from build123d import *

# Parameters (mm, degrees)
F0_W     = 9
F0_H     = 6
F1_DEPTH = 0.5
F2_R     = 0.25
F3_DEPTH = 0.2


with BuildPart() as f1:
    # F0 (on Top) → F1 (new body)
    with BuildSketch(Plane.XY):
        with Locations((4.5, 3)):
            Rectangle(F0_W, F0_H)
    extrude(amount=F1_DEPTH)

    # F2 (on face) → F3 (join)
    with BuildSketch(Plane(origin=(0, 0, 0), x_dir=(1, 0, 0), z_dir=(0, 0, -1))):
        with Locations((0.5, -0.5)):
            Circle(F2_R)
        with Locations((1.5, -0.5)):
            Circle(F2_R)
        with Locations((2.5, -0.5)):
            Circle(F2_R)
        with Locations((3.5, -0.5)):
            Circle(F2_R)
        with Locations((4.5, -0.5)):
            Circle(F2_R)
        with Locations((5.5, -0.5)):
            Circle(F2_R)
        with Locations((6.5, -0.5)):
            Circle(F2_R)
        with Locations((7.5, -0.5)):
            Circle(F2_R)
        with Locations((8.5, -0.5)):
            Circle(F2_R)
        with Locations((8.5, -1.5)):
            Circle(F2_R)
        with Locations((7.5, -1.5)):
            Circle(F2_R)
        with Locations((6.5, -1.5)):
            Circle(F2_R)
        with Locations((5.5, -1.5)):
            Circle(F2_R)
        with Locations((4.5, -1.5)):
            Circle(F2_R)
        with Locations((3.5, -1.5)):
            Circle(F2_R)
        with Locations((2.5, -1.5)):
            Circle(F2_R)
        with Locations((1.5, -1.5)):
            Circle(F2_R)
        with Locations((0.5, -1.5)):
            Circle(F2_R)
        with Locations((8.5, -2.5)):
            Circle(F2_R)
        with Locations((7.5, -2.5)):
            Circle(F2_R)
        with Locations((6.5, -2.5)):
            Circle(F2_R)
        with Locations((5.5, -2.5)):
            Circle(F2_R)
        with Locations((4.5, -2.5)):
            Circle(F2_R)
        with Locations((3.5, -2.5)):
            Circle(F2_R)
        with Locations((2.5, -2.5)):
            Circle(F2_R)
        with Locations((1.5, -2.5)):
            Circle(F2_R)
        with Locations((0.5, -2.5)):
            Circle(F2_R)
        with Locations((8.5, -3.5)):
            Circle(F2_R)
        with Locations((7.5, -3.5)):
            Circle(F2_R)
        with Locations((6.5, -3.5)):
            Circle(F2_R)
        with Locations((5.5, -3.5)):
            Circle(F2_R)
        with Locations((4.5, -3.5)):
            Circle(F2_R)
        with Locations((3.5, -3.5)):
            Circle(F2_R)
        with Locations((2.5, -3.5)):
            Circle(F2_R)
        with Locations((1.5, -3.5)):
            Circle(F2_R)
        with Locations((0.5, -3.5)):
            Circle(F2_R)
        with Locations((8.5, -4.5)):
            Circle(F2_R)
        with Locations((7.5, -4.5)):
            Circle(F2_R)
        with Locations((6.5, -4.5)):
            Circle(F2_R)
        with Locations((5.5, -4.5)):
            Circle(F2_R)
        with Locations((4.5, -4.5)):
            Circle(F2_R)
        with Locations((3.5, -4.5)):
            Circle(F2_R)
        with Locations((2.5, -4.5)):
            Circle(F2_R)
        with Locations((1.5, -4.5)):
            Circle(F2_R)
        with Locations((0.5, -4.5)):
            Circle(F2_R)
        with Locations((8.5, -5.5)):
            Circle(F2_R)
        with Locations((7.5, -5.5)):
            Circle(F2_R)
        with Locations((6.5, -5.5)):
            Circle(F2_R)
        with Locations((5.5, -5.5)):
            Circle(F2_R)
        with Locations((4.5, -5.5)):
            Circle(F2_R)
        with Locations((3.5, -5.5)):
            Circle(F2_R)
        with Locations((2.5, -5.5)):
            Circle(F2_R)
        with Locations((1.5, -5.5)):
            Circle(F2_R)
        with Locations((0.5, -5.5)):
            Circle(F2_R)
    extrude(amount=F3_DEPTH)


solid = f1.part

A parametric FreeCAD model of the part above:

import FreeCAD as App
import Part
import Sketcher
from FreeCAD import Vector
Q = App.Units.Quantity


def add_polygon(sketch, points):
    """Adds a closed chain of lines whose ends are joined by coincident constraints."""
    first, n = sketch.GeometryCount, len(points)
    for a, b in zip(points, points[1:] + points[:1]):
        sketch.addGeometry(Part.LineSegment(App.Vector(*a, 0), App.Vector(*b, 0)), False)
    for i in range(n):
        sketch.addConstraint(Sketcher.Constraint("Coincident", first + i, 2, first + (i + 1) % n, 1))

doc = App.newDocument("Part")
params = doc.addObject("Spreadsheet::Sheet", "Params")
for row, (alias, value) in enumerate([
    ("sketch1_width", "9 mm"),
    ("sketch1_height", "6 mm"),
    ("pad1_length", "0.5 mm"),
    ("sketch2_diameter", "0.5 mm"),
    ("pad2_length", "0.2 mm"),
], start=1):
    params.set(f"A{row}", alias)
    params.set(f"B{row}", "=" + value)
    params.setAlias(f"B{row}", alias)

body = doc.addObject("PartDesign::Body", "Body")

sketch1 = body.newObject("Sketcher::SketchObject", "Sketch")
sketch1.AttachmentSupport = (doc.getObject("XY_Plane"), [""])
sketch1.MapMode = "FlatFace"
add_polygon(sketch1, [(0, 6), (0, 0), (9, 0), (9, 6)])
sketch1.addConstraint([
    Sketcher.Constraint("Vertical", 0),
    Sketcher.Constraint("Horizontal", 1),
    Sketcher.Constraint("Vertical", 2),
    Sketcher.Constraint("Horizontal", 3),
    Sketcher.Constraint("Coincident", 0, 2, -1, 1),
    Sketcher.Constraint("DistanceX", 1, 1, 1, 2, Q("9 mm")),
    Sketcher.Constraint("DistanceY", 0, 2, 0, 1, Q("6 mm")),
])
sketch1.setExpression("Constraints[9]", "Params.sketch1_width")
sketch1.setExpression("Constraints[10]", "Params.sketch1_height")
pad1 = body.newObject("PartDesign::Pad", "Pad")
pad1.Profile = sketch1
pad1.setExpression("Length", "Params.pad1_length")

sketch2 = body.newObject("Sketcher::SketchObject", "Sketch001")
sketch2.AttachmentSupport = (doc.getObject("XY_Plane"), [""])
sketch2.MapMode = "FlatFace"
sketch2.addGeometry([
    Part.Circle(Vector(0.5, 0.5, 0), Vector(0, 0, 1), 0.25),
    Part.Circle(Vector(1.5, 0.5, 0), Vector(0, 0, 1), 0.25),
    Part.Circle(Vector(2.5, 0.5, 0), Vector(0, 0, 1), 0.25),
    Part.Circle(Vector(3.5, 0.5, 0), Vector(0, 0, 1), 0.25),
    Part.Circle(Vector(4.5, 0.5, 0), Vector(0, 0, 1), 0.25),
    Part.Circle(Vector(5.5, 0.5, 0), Vector(0, 0, 1), 0.25),
    Part.Circle(Vector(6.5, 0.5, 0), Vector(0, 0, 1), 0.25),
    Part.Circle(Vector(7.5, 0.5, 0), Vector(0, 0, 1), 0.25),
    Part.Circle(Vector(8.5, 0.5, 0), Vector(0, 0, 1), 0.25),
    Part.Circle(Vector(8.5, 1.5, 0), Vector(0, 0, 1), 0.25),
    Part.Circle(Vector(7.5, 1.5, 0), Vector(0, 0, 1), 0.25),
    Part.Circle(Vector(6.5, 1.5, 0), Vector(0, 0, 1), 0.25),
    Part.Circle(Vector(5.5, 1.5, 0), Vector(0, 0, 1), 0.25),
    Part.Circle(Vector(4.5, 1.5, 0), Vector(0, 0, 1), 0.25),
    Part.Circle(Vector(3.5, 1.5, 0), Vector(0, 0, 1), 0.25),
    Part.Circle(Vector(2.5, 1.5, 0), Vector(0, 0, 1), 0.25),
    Part.Circle(Vector(1.5, 1.5, 0), Vector(0, 0, 1), 0.25),
    Part.Circle(Vector(0.5, 1.5, 0), Vector(0, 0, 1), 0.25),
    Part.Circle(Vector(8.5, 2.5, 0), Vector(0, 0, 1), 0.25),
    Part.Circle(Vector(7.5, 2.5, 0), Vector(0, 0, 1), 0.25),
    Part.Circle(Vector(6.5, 2.5, 0), Vector(0, 0, 1), 0.25),
    Part.Circle(Vector(5.5, 2.5, 0), Vector(0, 0, 1), 0.25),
    Part.Circle(Vector(4.5, 2.5, 0), Vector(0, 0, 1), 0.25),
    Part.Circle(Vector(3.5, 2.5, 0), Vector(0, 0, 1), 0.25),
    Part.Circle(Vector(2.5, 2.5, 0), Vector(0, 0, 1), 0.25),
    Part.Circle(Vector(1.5, 2.5, 0), Vector(0, 0, 1), 0.25),
    Part.Circle(Vector(0.5, 2.5, 0), Vector(0, 0, 1), 0.25),
    Part.Circle(Vector(8.5, 3.5, 0), Vector(0, 0, 1), 0.25),
    Part.Circle(Vector(7.5, 3.5, 0), Vector(0, 0, 1), 0.25),
    Part.Circle(Vector(6.5, 3.5, 0), Vector(0, 0, 1), 0.25),
    Part.Circle(Vector(5.5, 3.5, 0), Vector(0, 0, 1), 0.25),
    Part.Circle(Vector(4.5, 3.5, 0), Vector(0, 0, 1), 0.25),
    Part.Circle(Vector(3.5, 3.5, 0), Vector(0, 0, 1), 0.25),
    Part.Circle(Vector(2.5, 3.5, 0), Vector(0, 0, 1), 0.25),
    Part.Circle(Vector(1.5, 3.5, 0), Vector(0, 0, 1), 0.25),
    Part.Circle(Vector(0.5, 3.5, 0), Vector(0, 0, 1), 0.25),
    Part.Circle(Vector(8.5, 4.5, 0), Vector(0, 0, 1), 0.25),
    Part.Circle(Vector(7.5, 4.5, 0), Vector(0, 0, 1), 0.25),
    Part.Circle(Vector(6.5, 4.5, 0), Vector(0, 0, 1), 0.25),
    Part.Circle(Vector(5.5, 4.5, 0), Vector(0, 0, 1), 0.25),
    Part.Circle(Vector(4.5, 4.5, 0), Vector(0, 0, 1), 0.25),
    Part.Circle(Vector(3.5, 4.5, 0), Vector(0, 0, 1), 0.25),
    Part.Circle(Vector(2.5, 4.5, 0), Vector(0, 0, 1), 0.25),
    Part.Circle(Vector(1.5, 4.5, 0), Vector(0, 0, 1), 0.25),
    Part.Circle(Vector(0.5, 4.5, 0), Vector(0, 0, 1), 0.25),
    Part.Circle(Vector(8.5, 5.5, 0), Vector(0, 0, 1), 0.25),
    Part.Circle(Vector(7.5, 5.5, 0), Vector(0, 0, 1), 0.25),
    Part.Circle(Vector(6.5, 5.5, 0), Vector(0, 0, 1), 0.25),
    Part.Circle(Vector(5.5, 5.5, 0), Vector(0, 0, 1), 0.25),
    Part.Circle(Vector(4.5, 5.5, 0), Vector(0, 0, 1), 0.25),
    Part.Circle(Vector(3.5, 5.5, 0), Vector(0, 0, 1), 0.25),
    Part.Circle(Vector(2.5, 5.5, 0), Vector(0, 0, 1), 0.25),
    Part.Circle(Vector(1.5, 5.5, 0), Vector(0, 0, 1), 0.25),
    Part.Circle(Vector(0.5, 5.5, 0), Vector(0, 0, 1), 0.25),
], False)
sketch2.addConstraint([
    Sketcher.Constraint("Equal", 0, 1),
    Sketcher.Constraint("Equal", 1, 2),
    Sketcher.Constraint("Equal", 2, 3),
    Sketcher.Constraint("Equal", 3, 4),
    Sketcher.Constraint("Equal", 4, 5),
    Sketcher.Constraint("Equal", 5, 6),
    Sketcher.Constraint("Equal", 6, 7),
    Sketcher.Constraint("Equal", 7, 8),
    Sketcher.Constraint("Equal", 8, 9),
    Sketcher.Constraint("Equal", 9, 10),
    Sketcher.Constraint("Equal", 10, 11),
    Sketcher.Constraint("Equal", 11, 12),
    Sketcher.Constraint("Equal", 12, 13),
    Sketcher.Constraint("Equal", 13, 14),
    Sketcher.Constraint("Equal", 14, 15),
    Sketcher.Constraint("Equal", 15, 16),
    Sketcher.Constraint("Equal", 16, 17),
    Sketcher.Constraint("Equal", 17, 18),
    Sketcher.Constraint("Equal", 18, 19),
    Sketcher.Constraint("Equal", 19, 20),
    Sketcher.Constraint("Equal", 20, 21),
    Sketcher.Constraint("Equal", 21, 22),
    Sketcher.Constraint("Equal", 22, 23),
    Sketcher.Constraint("Equal", 23, 24),
    Sketcher.Constraint("Equal", 24, 25),
    Sketcher.Constraint("Equal", 25, 26),
    Sketcher.Constraint("Equal", 26, 27),
    Sketcher.Constraint("Equal", 27, 28),
    Sketcher.Constraint("Equal", 28, 29),
    Sketcher.Constraint("Equal", 29, 30),
    Sketcher.Constraint("Equal", 30, 31),
    Sketcher.Constraint("Equal", 31, 32),
    Sketcher.Constraint("Equal", 32, 33),
    Sketcher.Constraint("Equal", 33, 34),
    Sketcher.Constraint("Equal", 34, 35),
    Sketcher.Constraint("Equal", 35, 36),
    Sketcher.Constraint("Equal", 36, 37),
    Sketcher.Constraint("Equal", 37, 38),
    Sketcher.Constraint("Equal", 38, 39),
    Sketcher.Constraint("Equal", 39, 40),
    Sketcher.Constraint("Equal", 40, 41),
    Sketcher.Constraint("Equal", 41, 42),
    Sketcher.Constraint("Equal", 42, 43),
    Sketcher.Constraint("Equal", 43, 44),
    Sketcher.Constraint("Equal", 44, 45),
    Sketcher.Constraint("Equal", 45, 46),
    Sketcher.Constraint("Equal", 46, 47),
    Sketcher.Constraint("Equal", 47, 48),
    Sketcher.Constraint("Equal", 48, 49),
    Sketcher.Constraint("Equal", 49, 50),
    Sketcher.Constraint("Equal", 50, 51),
    Sketcher.Constraint("Equal", 51, 52),
    Sketcher.Constraint("Equal", 52, 53),
    Sketcher.Constraint("Horizontal", 0, 3, 1, 3),
    Sketcher.Constraint("Horizontal", 1, 3, 2, 3),
    Sketcher.Constraint("Horizontal", 2, 3, 3, 3),
    Sketcher.Constraint("Horizontal", 3, 3, 4, 3),
    Sketcher.Constraint("Horizontal", 4, 3, 5, 3),
    Sketcher.Constraint("Horizontal", 5, 3, 6, 3),
    Sketcher.Constraint("Horizontal", 6, 3, 7, 3),
    Sketcher.Constraint("Horizontal", 7, 3, 8, 3),
    Sketcher.Constraint("Horizontal", 9, 3, 10, 3),
    Sketcher.Constraint("Horizontal", 10, 3, 11, 3),
    Sketcher.Constraint("Horizontal", 11, 3, 12, 3),
    Sketcher.Constraint("Horizontal", 12, 3, 13, 3),
    Sketcher.Constraint("Horizontal", 13, 3, 14, 3),
    Sketcher.Constraint("Horizontal", 14, 3, 15, 3),
    Sketcher.Constraint("Horizontal", 15, 3, 16, 3),
    Sketcher.Constraint("Horizontal", 16, 3, 17, 3),
    Sketcher.Constraint("Horizontal", 18, 3, 19, 3),
    Sketcher.Constraint("Horizontal", 19, 3, 20, 3),
    Sketcher.Constraint("Horizontal", 20, 3, 21, 3),
    Sketcher.Constraint("Horizontal", 21, 3, 22, 3),
    Sketcher.Constraint("Horizontal", 22, 3, 23, 3),
    Sketcher.Constraint("Horizontal", 23, 3, 24, 3),
    Sketcher.Constraint("Horizontal", 24, 3, 25, 3),
    Sketcher.Constraint("Horizontal", 25, 3, 26, 3),
    Sketcher.Constraint("Horizontal", 27, 3, 28, 3),
    Sketcher.Constraint("Horizontal", 28, 3, 29, 3),
    Sketcher.Constraint("Horizontal", 29, 3, 30, 3),
    Sketcher.Constraint("Horizontal", 30, 3, 31, 3),
    Sketcher.Constraint("Horizontal", 31, 3, 32, 3),
    Sketcher.Constraint("Horizontal", 32, 3, 33, 3),
    Sketcher.Constraint("Horizontal", 33, 3, 34, 3),
    Sketcher.Constraint("Horizontal", 34, 3, 35, 3),
    Sketcher.Constraint("Horizontal", 36, 3, 37, 3),
    Sketcher.Constraint("Horizontal", 37, 3, 38, 3),
    Sketcher.Constraint("Horizontal", 38, 3, 39, 3),
    Sketcher.Constraint("Horizontal", 39, 3, 40, 3),
    Sketcher.Constraint("Horizontal", 40, 3, 41, 3),
    Sketcher.Constraint("Horizontal", 41, 3, 42, 3),
    Sketcher.Constraint("Horizontal", 42, 3, 43, 3),
    Sketcher.Constraint("Horizontal", 43, 3, 44, 3),
    Sketcher.Constraint("Horizontal", 45, 3, 46, 3),
    Sketcher.Constraint("Horizontal", 46, 3, 47, 3),
    Sketcher.Constraint("Horizontal", 47, 3, 48, 3),
    Sketcher.Constraint("Horizontal", 48, 3, 49, 3),
    Sketcher.Constraint("Horizontal", 49, 3, 50, 3),
    Sketcher.Constraint("Horizontal", 50, 3, 51, 3),
    Sketcher.Constraint("Horizontal", 51, 3, 52, 3),
    Sketcher.Constraint("Horizontal", 52, 3, 53, 3),
    Sketcher.Constraint("Vertical", 8, 3, 9, 3),
    Sketcher.Constraint("Vertical", 7, 3, 10, 3),
    Sketcher.Constraint("Vertical", 6, 3, 11, 3),
    Sketcher.Constraint("Vertical", 5, 3, 12, 3),
    Sketcher.Constraint("Vertical", 4, 3, 13, 3),
    Sketcher.Constraint("Vertical", 3, 3, 14, 3),
    Sketcher.Constraint("Vertical", 2, 3, 15, 3),
    Sketcher.Constraint("Vertical", 1, 3, 16, 3),
    Sketcher.Constraint("Vertical", 0, 3, 17, 3),
    Sketcher.Constraint("Vertical", 9, 3, 18, 3),
    Sketcher.Constraint("Vertical", 10, 3, 19, 3),
    Sketcher.Constraint("Vertical", 11, 3, 20, 3),
    Sketcher.Constraint("Vertical", 12, 3, 21, 3),
    Sketcher.Constraint("Vertical", 13, 3, 22, 3),
    Sketcher.Constraint("Vertical", 14, 3, 23, 3),
    Sketcher.Constraint("Vertical", 15, 3, 24, 3),
    Sketcher.Constraint("Vertical", 16, 3, 25, 3),
    Sketcher.Constraint("Vertical", 17, 3, 26, 3),
    Sketcher.Constraint("Vertical", 18, 3, 27, 3),
    Sketcher.Constraint("Vertical", 19, 3, 28, 3),
    Sketcher.Constraint("Vertical", 20, 3, 29, 3),
    Sketcher.Constraint("Vertical", 21, 3, 30, 3),
    Sketcher.Constraint("Vertical", 22, 3, 31, 3),
    Sketcher.Constraint("Vertical", 23, 3, 32, 3),
    Sketcher.Constraint("Vertical", 24, 3, 33, 3),
    Sketcher.Constraint("Vertical", 25, 3, 34, 3),
    Sketcher.Constraint("Vertical", 26, 3, 35, 3),
    Sketcher.Constraint("Vertical", 27, 3, 36, 3),
    Sketcher.Constraint("Vertical", 28, 3, 37, 3),
    Sketcher.Constraint("Vertical", 29, 3, 38, 3),
    Sketcher.Constraint("Vertical", 30, 3, 39, 3),
    Sketcher.Constraint("Vertical", 31, 3, 40, 3),
    Sketcher.Constraint("Vertical", 32, 3, 41, 3),
    Sketcher.Constraint("Vertical", 33, 3, 42, 3),
    Sketcher.Constraint("Vertical", 34, 3, 43, 3),
    Sketcher.Constraint("Vertical", 35, 3, 44, 3),
    Sketcher.Constraint("Vertical", 36, 3, 45, 3),
    Sketcher.Constraint("Vertical", 37, 3, 46, 3),
    Sketcher.Constraint("Vertical", 38, 3, 47, 3),
    Sketcher.Constraint("Vertical", 39, 3, 48, 3),
    Sketcher.Constraint("Vertical", 40, 3, 49, 3),
    Sketcher.Constraint("Vertical", 41, 3, 50, 3),
    Sketcher.Constraint("Vertical", 42, 3, 51, 3),
    Sketcher.Constraint("Vertical", 43, 3, 52, 3),
    Sketcher.Constraint("Vertical", 44, 3, 53, 3),
    Sketcher.Constraint("Diameter", 0, Q("0.5 mm")),
    Sketcher.Constraint("DistanceX", 0, 3, 1, 3, Q("1 mm")),
    Sketcher.Constraint("DistanceX", 1, 3, 2, 3, Q("1 mm")),
    Sketcher.Constraint("DistanceX", 2, 3, 3, 3, Q("1 mm")),
    Sketcher.Constraint("DistanceX", 3, 3, 4, 3, Q("1 mm")),
    Sketcher.Constraint("DistanceX", 4, 3, 5, 3, Q("1 mm")),
    Sketcher.Constraint("DistanceX", 5, 3, 6, 3, Q("1 mm")),
    Sketcher.Constraint("DistanceX", 6, 3, 7, 3, Q("1 mm")),
    Sketcher.Constraint("DistanceX", 7, 3, 8, 3, Q("1 mm")),
    Sketcher.Constraint("DistanceY", 8, 3, 9, 3, Q("1 mm")),
    Sketcher.Constraint("DistanceY", 9, 3, 18, 3, Q("1 mm")),
    Sketcher.Constraint("DistanceY", 18, 3, 27, 3, Q("1 mm")),
    Sketcher.Constraint("DistanceY", 27, 3, 36, 3, Q("1 mm")),
    Sketcher.Constraint("DistanceY", 36, 3, 45, 3, Q("1 mm")),
    Sketcher.Constraint("DistanceX", -1, 1, 0, 3, Q("0.5 mm")),
    Sketcher.Constraint("DistanceY", -1, 1, 0, 3, Q("0.5 mm")),
])
sketch2.setExpression("Constraints[146]", "Params.sketch2_diameter")
pad2 = body.newObject("PartDesign::Pad", "Pad001")
pad2.Profile = sketch2
pad2.setExpression("Length", "Params.pad2_length")
pad2.Reversed = True

doc.recompute()
